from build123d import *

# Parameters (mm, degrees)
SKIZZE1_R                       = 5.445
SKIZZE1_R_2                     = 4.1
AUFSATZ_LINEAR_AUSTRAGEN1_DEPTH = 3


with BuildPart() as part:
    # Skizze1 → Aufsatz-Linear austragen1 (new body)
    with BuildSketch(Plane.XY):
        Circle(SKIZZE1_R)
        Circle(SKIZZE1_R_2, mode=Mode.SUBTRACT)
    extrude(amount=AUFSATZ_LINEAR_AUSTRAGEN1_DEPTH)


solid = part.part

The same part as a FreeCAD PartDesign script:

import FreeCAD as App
import Part
import Sketcher
from FreeCAD import Vector
Q = App.Units.Quantity

doc = App.newDocument("Part")
body = doc.addObject("PartDesign::Body", "Body")

sketch1 = body.newObject("Sketcher::SketchObject", "Sketch")
sketch1.AttachmentSupport = (doc.getObject("XY_Plane"), [""])
sketch1.MapMode = "FlatFace"
sketch1.addGeometry([
    Part.Circle(Vector(0, 0, 0), Vector(0, 0, 1), 5.4),
    Part.Circle(Vector(0, 0, 0), Vector(0, 0, 1), 4.1),
], False)
sketch1.addConstraint([
    Sketcher.Constraint("Coincident", 0, 3, -1, 1),
    Sketcher.Constraint("Coincident", 1, 3, -1, 1),
    Sketcher.Constraint("Diameter", 1, Q("8.2 mm")),
    Sketcher.Constraint("Diameter", 0, Q("10.89 mm")),
])
pad1 = body.newObject("PartDesign::Pad", "Pad")
pad1.Profile = sketch1
pad1.Length = 3

doc.recompute()
